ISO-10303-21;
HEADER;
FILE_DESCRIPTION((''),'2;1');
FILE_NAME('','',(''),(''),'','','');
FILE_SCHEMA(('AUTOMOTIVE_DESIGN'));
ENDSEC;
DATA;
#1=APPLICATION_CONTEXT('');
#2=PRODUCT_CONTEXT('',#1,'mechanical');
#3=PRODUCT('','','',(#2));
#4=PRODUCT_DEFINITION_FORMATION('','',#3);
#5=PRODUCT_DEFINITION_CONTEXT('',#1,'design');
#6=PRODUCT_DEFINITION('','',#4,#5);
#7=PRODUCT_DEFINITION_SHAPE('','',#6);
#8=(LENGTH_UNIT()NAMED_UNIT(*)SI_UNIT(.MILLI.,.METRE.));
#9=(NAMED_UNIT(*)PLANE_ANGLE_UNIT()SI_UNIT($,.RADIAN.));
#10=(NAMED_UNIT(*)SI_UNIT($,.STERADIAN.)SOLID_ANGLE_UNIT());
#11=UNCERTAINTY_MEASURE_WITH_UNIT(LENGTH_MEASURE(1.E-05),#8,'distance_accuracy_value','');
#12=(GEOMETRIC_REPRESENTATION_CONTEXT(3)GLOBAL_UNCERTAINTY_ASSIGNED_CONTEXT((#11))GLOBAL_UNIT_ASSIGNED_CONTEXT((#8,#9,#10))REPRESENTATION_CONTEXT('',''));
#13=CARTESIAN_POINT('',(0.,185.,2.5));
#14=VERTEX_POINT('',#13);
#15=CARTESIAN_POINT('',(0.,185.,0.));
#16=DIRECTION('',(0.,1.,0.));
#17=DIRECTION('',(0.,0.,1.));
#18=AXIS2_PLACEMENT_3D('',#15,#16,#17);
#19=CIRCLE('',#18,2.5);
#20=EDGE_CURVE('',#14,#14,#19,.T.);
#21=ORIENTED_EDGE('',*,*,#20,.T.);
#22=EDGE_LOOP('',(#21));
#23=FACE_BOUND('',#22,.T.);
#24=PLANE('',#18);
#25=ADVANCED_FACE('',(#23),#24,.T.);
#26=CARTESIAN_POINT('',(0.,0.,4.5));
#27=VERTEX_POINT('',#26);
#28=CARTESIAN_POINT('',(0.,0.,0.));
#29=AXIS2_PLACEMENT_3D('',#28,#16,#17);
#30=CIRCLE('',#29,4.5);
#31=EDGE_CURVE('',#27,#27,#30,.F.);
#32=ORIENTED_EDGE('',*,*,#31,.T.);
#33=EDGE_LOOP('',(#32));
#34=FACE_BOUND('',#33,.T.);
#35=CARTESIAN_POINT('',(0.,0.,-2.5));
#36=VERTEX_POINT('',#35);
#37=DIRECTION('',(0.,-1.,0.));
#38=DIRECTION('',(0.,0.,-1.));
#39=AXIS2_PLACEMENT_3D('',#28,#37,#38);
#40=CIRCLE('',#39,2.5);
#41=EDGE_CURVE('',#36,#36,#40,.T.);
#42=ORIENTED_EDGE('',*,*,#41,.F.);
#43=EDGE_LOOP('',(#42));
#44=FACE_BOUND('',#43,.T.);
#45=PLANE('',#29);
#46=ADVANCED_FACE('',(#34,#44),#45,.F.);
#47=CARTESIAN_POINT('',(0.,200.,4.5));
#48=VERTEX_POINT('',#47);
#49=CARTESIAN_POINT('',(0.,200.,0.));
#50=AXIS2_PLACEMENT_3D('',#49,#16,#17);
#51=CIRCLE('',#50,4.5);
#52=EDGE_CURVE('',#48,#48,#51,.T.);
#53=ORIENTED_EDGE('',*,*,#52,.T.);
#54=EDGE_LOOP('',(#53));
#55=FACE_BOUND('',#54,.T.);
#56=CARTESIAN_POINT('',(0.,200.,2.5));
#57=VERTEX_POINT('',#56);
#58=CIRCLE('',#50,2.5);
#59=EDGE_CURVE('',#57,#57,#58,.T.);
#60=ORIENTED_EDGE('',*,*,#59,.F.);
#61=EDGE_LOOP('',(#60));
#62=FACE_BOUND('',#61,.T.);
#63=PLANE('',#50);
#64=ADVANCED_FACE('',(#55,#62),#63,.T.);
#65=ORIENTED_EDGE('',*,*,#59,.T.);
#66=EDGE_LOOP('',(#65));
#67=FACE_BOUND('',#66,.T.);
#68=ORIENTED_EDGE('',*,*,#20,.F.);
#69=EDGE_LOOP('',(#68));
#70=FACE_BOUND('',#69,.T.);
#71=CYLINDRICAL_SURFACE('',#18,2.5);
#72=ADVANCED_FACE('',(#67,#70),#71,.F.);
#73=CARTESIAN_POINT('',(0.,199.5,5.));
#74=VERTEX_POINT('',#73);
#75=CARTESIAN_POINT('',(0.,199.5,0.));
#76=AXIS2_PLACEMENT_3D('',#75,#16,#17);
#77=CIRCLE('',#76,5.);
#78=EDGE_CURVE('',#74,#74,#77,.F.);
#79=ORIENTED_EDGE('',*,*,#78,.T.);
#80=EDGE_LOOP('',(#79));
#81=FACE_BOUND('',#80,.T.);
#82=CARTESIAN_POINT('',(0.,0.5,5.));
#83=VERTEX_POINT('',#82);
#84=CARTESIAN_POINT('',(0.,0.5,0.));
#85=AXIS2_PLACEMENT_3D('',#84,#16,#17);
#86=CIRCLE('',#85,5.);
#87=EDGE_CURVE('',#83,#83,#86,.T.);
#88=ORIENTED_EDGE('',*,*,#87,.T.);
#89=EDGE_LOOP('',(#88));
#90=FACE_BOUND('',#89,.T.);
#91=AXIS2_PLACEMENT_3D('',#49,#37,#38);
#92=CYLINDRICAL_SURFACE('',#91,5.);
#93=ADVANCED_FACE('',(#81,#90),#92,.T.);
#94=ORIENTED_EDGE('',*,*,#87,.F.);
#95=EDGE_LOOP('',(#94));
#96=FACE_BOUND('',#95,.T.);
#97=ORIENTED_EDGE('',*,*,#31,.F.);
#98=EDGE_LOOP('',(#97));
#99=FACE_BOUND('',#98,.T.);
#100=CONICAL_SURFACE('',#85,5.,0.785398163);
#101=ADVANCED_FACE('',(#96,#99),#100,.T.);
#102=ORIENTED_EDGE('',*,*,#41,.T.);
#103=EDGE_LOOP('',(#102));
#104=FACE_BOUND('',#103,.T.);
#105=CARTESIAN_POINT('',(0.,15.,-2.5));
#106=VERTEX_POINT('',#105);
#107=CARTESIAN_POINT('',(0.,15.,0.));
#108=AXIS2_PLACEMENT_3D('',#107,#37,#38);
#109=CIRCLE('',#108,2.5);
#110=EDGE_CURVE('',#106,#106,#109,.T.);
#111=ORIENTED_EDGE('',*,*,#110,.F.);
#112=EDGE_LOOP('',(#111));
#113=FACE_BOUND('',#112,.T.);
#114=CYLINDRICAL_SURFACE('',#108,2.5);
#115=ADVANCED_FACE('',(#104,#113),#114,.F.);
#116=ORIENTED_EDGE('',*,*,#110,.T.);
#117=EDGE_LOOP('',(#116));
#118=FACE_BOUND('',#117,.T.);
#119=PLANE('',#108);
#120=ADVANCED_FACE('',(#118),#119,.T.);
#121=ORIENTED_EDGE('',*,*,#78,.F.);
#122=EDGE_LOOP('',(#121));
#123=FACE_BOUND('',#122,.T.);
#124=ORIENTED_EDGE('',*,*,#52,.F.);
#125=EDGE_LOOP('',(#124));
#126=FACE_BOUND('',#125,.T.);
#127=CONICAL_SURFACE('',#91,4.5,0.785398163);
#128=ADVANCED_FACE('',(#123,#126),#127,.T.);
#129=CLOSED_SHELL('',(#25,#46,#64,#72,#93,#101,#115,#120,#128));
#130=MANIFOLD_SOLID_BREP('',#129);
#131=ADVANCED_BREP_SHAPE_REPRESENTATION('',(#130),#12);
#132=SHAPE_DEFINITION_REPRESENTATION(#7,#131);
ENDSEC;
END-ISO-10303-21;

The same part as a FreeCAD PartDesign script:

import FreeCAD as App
import Part
import Sketcher


def edges_at(feature, points):
    """Names of the edges that pass closest to the given points."""
    edges = feature.Shape.Edges
    near = lambda p: min(range(len(edges)), key=lambda i: edges[i].distToShape(Part.Vertex(*p))[0])
    return sorted({f"Edge{near(p) + 1}" for p in points})

doc = App.newDocument("Part")
body = doc.addObject("PartDesign::Body", "Body")

# Sketch on XZ plane
sketch1 = body.newObject("Sketcher::SketchObject", "Sketch")
sketch1.AttachmentSupport = (doc.getObject("XZ_Plane"), [""])
sketch1.MapMode = "FlatFace"
sketch1.addGeometry(Part.Circle(App.Vector(0, 0, 0), App.Vector(0, 0, 1), 5), False)
sketch1.addConstraint(Sketcher.Constraint("Coincident", 0, 3, -1, 1))
sketch1.addConstraint(Sketcher.Constraint("Diameter", 0, 10.0))
pad1 = body.newObject("PartDesign::Pad", "Pad")
pad1.Profile = sketch1
pad1.Length = 200
pad1.Reversed = True
doc.recompute()

chamfer = body.newObject("PartDesign::Chamfer", "Chamfer")
chamfer.Base = (pad1, edges_at(pad1, [(-5, 0, 0), (-5, 200, 0)]))
chamfer.Size = 0.5

# Sketch on XZ plane
sketch2 = body.newObject("Sketcher::SketchObject", "Sketch001")
sketch2.AttachmentSupport = (doc.getObject("XZ_Plane"), [""])
sketch2.MapMode = "FlatFace"
sketch2.addGeometry(Part.Circle(App.Vector(0, 0, 0), App.Vector(0, 0, 1), 2.5), False)
sketch2.addConstraint(Sketcher.Constraint("Coincident", 0, 3, -1, 1))
sketch2.addConstraint(Sketcher.Constraint("Diameter", 0, 5.0))
pocket1 = body.newObject("PartDesign::Pocket", "Pocket")
pocket1.Profile = sketch2
pocket1.Length = 15

# Sketch on XZ plane
sketch3 = body.newObject("Sketcher::SketchObject", "Sketch002")
sketch3.AttachmentSupport = (doc.getObject("XZ_Plane"), [""])
sketch3.MapMode = "FlatFace"
sketch3.AttachmentOffset = App.Placement(App.Vector(0, 0, -200), App.Rotation())
sketch3.addGeometry(Part.Circle(App.Vector(0, 0, 0), App.Vector(0, 0, 1), 2.5), False)
sketch3.addConstraint(Sketcher.Constraint("Coincident", 0, 3, -1, 1))
sketch3.addConstraint(Sketcher.Constraint("Diameter", 0, 5.0))
pocket2 = body.newObject("PartDesign::Pocket", "Pocket001")
pocket2.Profile = sketch3
pocket2.Length = 15
pocket2.Reversed = True

doc.recompute()
